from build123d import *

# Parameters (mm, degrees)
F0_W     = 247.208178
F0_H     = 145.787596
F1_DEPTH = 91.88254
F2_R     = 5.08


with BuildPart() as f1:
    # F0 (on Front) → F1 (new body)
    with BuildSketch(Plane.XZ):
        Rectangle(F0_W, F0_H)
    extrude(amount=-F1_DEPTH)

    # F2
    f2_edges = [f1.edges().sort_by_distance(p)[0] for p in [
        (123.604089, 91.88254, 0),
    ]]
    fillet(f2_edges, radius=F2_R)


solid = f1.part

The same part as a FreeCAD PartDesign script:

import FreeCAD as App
import Part
import Sketcher

V = App.Vector
Q = App.Units.Quantity


def edges_at(feature, points):
    """Names of the edges that pass closest to the given points."""
    edges = feature.Shape.Edges
    near = lambda p: min(range(len(edges)), key=lambda i: edges[i].distToShape(Part.Vertex(*p))[0])
    return sorted({f"Edge{near(p) + 1}" for p in points})

doc = App.newDocument("Part")
body = doc.addObject("PartDesign::Body", "Body")

sketch1 = doc.addObject("Sketcher::SketchObject", "Sketch")
body.addObject(sketch1)
sketch1.AttachmentSupport = (doc.XZ_Plane, [""])
sketch1.MapMode = "FlatFace"
sketch1.addGeometry(Part.LineSegment(V(-123.604089, 72.893798, 0), V(-123.604089, -72.893798, 0)), False)
sketch1.addGeometry(Part.LineSegment(V(-123.604089, -72.893798, 0), V(123.604089, -72.893798, 0)), False)
sketch1.addGeometry(Part.LineSegment(V(123.604089, -72.893798, 0), V(123.604089, 72.893798, 0)), False)
sketch1.addGeometry(Part.LineSegment(V(123.604089, 72.893798, 0), V(-123.604089, 72.893798, 0)), False)
sketch1.addConstraint(Sketcher.Constraint("Coincident", 0, 2, 1, 1))
sketch1.addConstraint(Sketcher.Constraint("Coincident", 1, 2, 2, 1))
sketch1.addConstraint(Sketcher.Constraint("Coincident", 2, 2, 3, 1))
sketch1.addConstraint(Sketcher.Constraint("Coincident", 3, 2, 0, 1))
sketch1.addConstraint(Sketcher.Constraint("Vertical", 0))
sketch1.addConstraint(Sketcher.Constraint("Horizontal", 1))
sketch1.addConstraint(Sketcher.Constraint("Vertical", 2))
sketch1.addConstraint(Sketcher.Constraint("Horizontal", 3))
sketch1.addConstraint(Sketcher.Constraint("Symmetric", 0, 2, 2, 2, -1, 1))
sketch1.addConstraint(Sketcher.Constraint("DistanceX", 1, 1, 1, 2, 247.208178))
sketch1.addConstraint(Sketcher.Constraint("DistanceY", 0, 2, -1, 1, 72.893798))
pad1 = doc.addObject("PartDesign::Pad", "Pad")
body.addObject(pad1)
pad1.Profile = sketch1
pad1.Length = 91.88254
pad1.Reversed = True
doc.recompute()

fillet = doc.addObject("PartDesign::Fillet", "Fillet")
body.addObject(fillet)
fillet.Base = (pad1, edges_at(pad1, [(123.604, 91.883, 0)]))
fillet.Radius = Q("0.2 in")

doc.recompute()
